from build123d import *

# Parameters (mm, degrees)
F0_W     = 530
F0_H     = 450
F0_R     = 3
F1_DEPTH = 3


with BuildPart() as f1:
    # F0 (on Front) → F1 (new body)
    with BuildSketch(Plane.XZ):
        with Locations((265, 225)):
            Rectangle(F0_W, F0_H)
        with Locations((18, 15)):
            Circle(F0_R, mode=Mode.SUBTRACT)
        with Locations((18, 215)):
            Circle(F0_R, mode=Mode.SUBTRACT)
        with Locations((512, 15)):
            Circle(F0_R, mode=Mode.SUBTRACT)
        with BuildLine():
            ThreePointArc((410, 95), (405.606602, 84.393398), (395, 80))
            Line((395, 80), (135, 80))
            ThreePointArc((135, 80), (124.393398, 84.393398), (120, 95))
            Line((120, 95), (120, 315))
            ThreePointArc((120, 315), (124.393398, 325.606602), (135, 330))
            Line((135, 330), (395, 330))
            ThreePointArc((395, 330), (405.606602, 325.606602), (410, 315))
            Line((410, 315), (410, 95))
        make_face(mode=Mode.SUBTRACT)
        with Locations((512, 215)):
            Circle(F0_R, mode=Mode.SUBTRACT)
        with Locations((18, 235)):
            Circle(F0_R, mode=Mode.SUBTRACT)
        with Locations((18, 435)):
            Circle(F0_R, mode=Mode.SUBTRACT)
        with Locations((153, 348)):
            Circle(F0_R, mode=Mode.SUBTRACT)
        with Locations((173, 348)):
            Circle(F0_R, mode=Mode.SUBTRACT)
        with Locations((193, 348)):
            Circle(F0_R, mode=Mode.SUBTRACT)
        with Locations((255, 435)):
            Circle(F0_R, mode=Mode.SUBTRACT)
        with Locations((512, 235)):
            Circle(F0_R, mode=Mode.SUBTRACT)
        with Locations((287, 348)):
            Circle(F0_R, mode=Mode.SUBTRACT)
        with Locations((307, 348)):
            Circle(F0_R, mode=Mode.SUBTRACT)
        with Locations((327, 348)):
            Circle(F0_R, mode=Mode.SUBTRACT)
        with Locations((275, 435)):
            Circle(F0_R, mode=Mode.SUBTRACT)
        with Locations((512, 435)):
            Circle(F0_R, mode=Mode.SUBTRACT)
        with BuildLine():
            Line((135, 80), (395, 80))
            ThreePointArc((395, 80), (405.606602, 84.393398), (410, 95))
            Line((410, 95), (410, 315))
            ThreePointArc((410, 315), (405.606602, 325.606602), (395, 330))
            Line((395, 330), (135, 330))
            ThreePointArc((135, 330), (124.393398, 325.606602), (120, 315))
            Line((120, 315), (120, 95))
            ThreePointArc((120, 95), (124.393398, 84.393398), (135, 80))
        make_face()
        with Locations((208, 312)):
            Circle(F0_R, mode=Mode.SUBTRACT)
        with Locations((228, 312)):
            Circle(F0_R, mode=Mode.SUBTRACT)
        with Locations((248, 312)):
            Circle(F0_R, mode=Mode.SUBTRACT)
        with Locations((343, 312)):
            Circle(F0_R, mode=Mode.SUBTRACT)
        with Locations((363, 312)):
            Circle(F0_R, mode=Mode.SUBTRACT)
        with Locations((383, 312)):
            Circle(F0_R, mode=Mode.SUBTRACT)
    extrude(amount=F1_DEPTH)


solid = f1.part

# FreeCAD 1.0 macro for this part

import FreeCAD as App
import Part
import Sketcher
from FreeCAD import Vector
Q = App.Units.Quantity


def add_polygon(sketch, points):
    """Adds a closed chain of lines whose ends are joined by coincident constraints."""
    first, n = sketch.GeometryCount, len(points)
    for a, b in zip(points, points[1:] + points[:1]):
        sketch.addGeometry(Part.LineSegment(App.Vector(*a, 0), App.Vector(*b, 0)), False)
    for i in range(n):
        sketch.addConstraint(Sketcher.Constraint("Coincident", first + i, 2, first + (i + 1) % n, 1))

doc = App.newDocument("Part")
body = doc.addObject("PartDesign::Body", "Body")

sketch1 = doc.addObject("Sketcher::SketchObject", "Sketch")
body.addObject(sketch1)
sketch1.AttachmentSupport = (doc.XZ_Plane, [""])
sketch1.MapMode = "FlatFace"
add_polygon(sketch1, [(0, 450), (0, 0), (530, 0), (530, 450)])
sketch1.addGeometry(Part.Circle(Vector(18, 15, 0), Vector(0, 0, 1), 3), False)
sketch1.addGeometry(Part.Circle(Vector(18, 215, 0), Vector(0, 0, 1), 3), False)
sketch1.addGeometry(Part.Circle(Vector(512, 15, 0), Vector(0, 0, 1), 3), False)
sketch1.addGeometry(Part.Circle(Vector(512, 215, 0), Vector(0, 0, 1), 3), False)
sketch1.addGeometry(Part.Circle(Vector(18, 235, 0), Vector(0, 0, 1), 3), False)
sketch1.addGeometry(Part.Circle(Vector(208, 312, 0), Vector(0, 0, 1), 3), False)
sketch1.addGeometry(Part.Circle(Vector(228, 312, 0), Vector(0, 0, 1), 3), False)
sketch1.addGeometry(Part.Circle(Vector(248, 312, 0), Vector(0, 0, 1), 3), False)
sketch1.addGeometry(Part.Circle(Vector(18, 435, 0), Vector(0, 0, 1), 3), False)
sketch1.addGeometry(Part.Circle(Vector(153, 348, 0), Vector(0, 0, 1), 3), False)
sketch1.addGeometry(Part.Circle(Vector(173, 348, 0), Vector(0, 0, 1), 3), False)
sketch1.addGeometry(Part.Circle(Vector(193, 348, 0), Vector(0, 0, 1), 3), False)
sketch1.addGeometry(Part.Circle(Vector(255, 435, 0), Vector(0, 0, 1), 3), False)
sketch1.addGeometry(Part.Circle(Vector(343, 312, 0), Vector(0, 0, 1), 3), False)
sketch1.addGeometry(Part.Circle(Vector(363, 312, 0), Vector(0, 0, 1), 3), False)
sketch1.addGeometry(Part.Circle(Vector(383, 312, 0), Vector(0, 0, 1), 3), False)
sketch1.addGeometry(Part.Circle(Vector(512, 235, 0), Vector(0, 0, 1), 3), False)
sketch1.addGeometry(Part.Circle(Vector(287, 348, 0), Vector(0, 0, 1), 3), False)
sketch1.addGeometry(Part.Circle(Vector(307, 348, 0), Vector(0, 0, 1), 3), False)
sketch1.addGeometry(Part.Circle(Vector(327, 348, 0), Vector(0, 0, 1), 3), False)
sketch1.addGeometry(Part.Circle(Vector(275, 435, 0), Vector(0, 0, 1), 3), False)
sketch1.addGeometry(Part.Circle(Vector(512, 435, 0), Vector(0, 0, 1), 3), False)
sketch1.addConstraint([
    Sketcher.Constraint("Vertical", 0),
    Sketcher.Constraint("Horizontal", 1),
    Sketcher.Constraint("Vertical", 2),
    Sketcher.Constraint("Horizontal", 3),
    Sketcher.Constraint("Coincident", 0, 2, -1, 1),
    Sketcher.Constraint("Equal", 4, 5),
    Sketcher.Constraint("Equal", 5, 6),
    Sketcher.Constraint("Equal", 6, 7),
    Sketcher.Constraint("Equal", 7, 8),
    Sketcher.Constraint("Equal", 8, 9),
    Sketcher.Constraint("Equal", 9, 10),
    Sketcher.Constraint("Equal", 10, 11),
    Sketcher.Constraint("Equal", 11, 12),
    Sketcher.Constraint("Equal", 12, 13),
    Sketcher.Constraint("Equal", 13, 14),
    Sketcher.Constraint("Equal", 14, 15),
    Sketcher.Constraint("Equal", 15, 16),
    Sketcher.Constraint("Equal", 16, 17),
    Sketcher.Constraint("Equal", 17, 18),
    Sketcher.Constraint("Equal", 18, 19),
    Sketcher.Constraint("Equal", 19, 20),
    Sketcher.Constraint("Equal", 20, 21),
    Sketcher.Constraint("Equal", 21, 22),
    Sketcher.Constraint("Equal", 22, 23),
    Sketcher.Constraint("Equal", 23, 24),
    Sketcher.Constraint("Equal", 24, 25),
    Sketcher.Constraint("Horizontal", 4, 3, 6, 3),
    Sketcher.Constraint("Horizontal", 5, 3, 7, 3),
    Sketcher.Constraint("Horizontal", 9, 3, 10, 3),
    Sketcher.Constraint("Horizontal", 10, 3, 11, 3),
    Sketcher.Constraint("Horizontal", 13, 3, 14, 3),
    Sketcher.Constraint("Horizontal", 14, 3, 15, 3),
    Sketcher.Constraint("Horizontal", 12, 3, 16, 3),
    Sketcher.Constraint("Horizontal", 11, 3, 17, 3),
    Sketcher.Constraint("Horizontal", 17, 3, 18, 3),
    Sketcher.Constraint("Horizontal", 18, 3, 19, 3),
    Sketcher.Constraint("Horizontal", 8, 3, 20, 3),
    Sketcher.Constraint("Horizontal", 15, 3, 21, 3),
    Sketcher.Constraint("Horizontal", 21, 3, 22, 3),
    Sketcher.Constraint("Horizontal", 22, 3, 23, 3),
    Sketcher.Constraint("Horizontal", 16, 3, 24, 3),
    Sketcher.Constraint("Horizontal", 24, 3, 25, 3),
    Sketcher.Constraint("Vertical", 4, 3, 5, 3),
    Sketcher.Constraint("Vertical", 6, 3, 7, 3),
    Sketcher.Constraint("Vertical", 5, 3, 8, 3),
    Sketcher.Constraint("Vertical", 8, 3, 12, 3),
    Sketcher.Constraint("Vertical", 7, 3, 20, 3),
    Sketcher.Constraint("Vertical", 20, 3, 25, 3),
    Sketcher.Constraint("Diameter", 4, Q("6 mm")),
    Sketcher.Constraint("DistanceX", 1, 1, 1, 2, Q("530 mm")),
    Sketcher.Constraint("DistanceY", 0, 2, 0, 1, Q("450 mm")),
    Sketcher.Constraint("DistanceX", -1, 1, 4, 3, Q("18 mm")),
    Sketcher.Constraint("DistanceY", -1, 1, 4, 3, Q("15 mm")),
    Sketcher.Constraint("DistanceY", -1, 1, 5, 3, Q("215 mm")),
    Sketcher.Constraint("DistanceX", -1, 1, 6, 3, Q("512 mm")),
    Sketcher.Constraint("DistanceY", -1, 1, 8, 3, Q("235 mm")),
    Sketcher.Constraint("DistanceX", -1, 1, 9, 3, Q("208 mm")),
    Sketcher.Constraint("DistanceY", -1, 1, 9, 3, Q("312 mm")),
    Sketcher.Constraint("DistanceX", -1, 1, 10, 3, Q("228 mm")),
    Sketcher.Constraint("DistanceX", -1, 1, 11, 3, Q("248 mm")),
    Sketcher.Constraint("DistanceY", -1, 1, 12, 3, Q("435 mm")),
    Sketcher.Constraint("DistanceX", -1, 1, 13, 3, Q("153 mm")),
    Sketcher.Constraint("DistanceY", -1, 1, 13, 3, Q("348 mm")),
    Sketcher.Constraint("DistanceX", -1, 1, 14, 3, Q("173 mm")),
    Sketcher.Constraint("DistanceX", -1, 1, 15, 3, Q("193 mm")),
    Sketcher.Constraint("DistanceX", -1, 1, 16, 3, Q("255 mm")),
    Sketcher.Constraint("DistanceX", -1, 1, 17, 3, Q("343 mm")),
    Sketcher.Constraint("DistanceX", -1, 1, 18, 3, Q("363 mm")),
    Sketcher.Constraint("DistanceX", -1, 1, 19, 3, Q("383 mm")),
    Sketcher.Constraint("DistanceX", -1, 1, 21, 3, Q("287 mm")),
    Sketcher.Constraint("DistanceX", -1, 1, 22, 3, Q("307 mm")),
    Sketcher.Constraint("DistanceX", -1, 1, 23, 3, Q("327 mm")),
    Sketcher.Constraint("DistanceX", -1, 1, 24, 3, Q("275 mm")),
])
pad1 = doc.addObject("PartDesign::Pad", "Pad")
body.addObject(pad1)
pad1.Profile = sketch1
pad1.Length = 3

doc.recompute()
